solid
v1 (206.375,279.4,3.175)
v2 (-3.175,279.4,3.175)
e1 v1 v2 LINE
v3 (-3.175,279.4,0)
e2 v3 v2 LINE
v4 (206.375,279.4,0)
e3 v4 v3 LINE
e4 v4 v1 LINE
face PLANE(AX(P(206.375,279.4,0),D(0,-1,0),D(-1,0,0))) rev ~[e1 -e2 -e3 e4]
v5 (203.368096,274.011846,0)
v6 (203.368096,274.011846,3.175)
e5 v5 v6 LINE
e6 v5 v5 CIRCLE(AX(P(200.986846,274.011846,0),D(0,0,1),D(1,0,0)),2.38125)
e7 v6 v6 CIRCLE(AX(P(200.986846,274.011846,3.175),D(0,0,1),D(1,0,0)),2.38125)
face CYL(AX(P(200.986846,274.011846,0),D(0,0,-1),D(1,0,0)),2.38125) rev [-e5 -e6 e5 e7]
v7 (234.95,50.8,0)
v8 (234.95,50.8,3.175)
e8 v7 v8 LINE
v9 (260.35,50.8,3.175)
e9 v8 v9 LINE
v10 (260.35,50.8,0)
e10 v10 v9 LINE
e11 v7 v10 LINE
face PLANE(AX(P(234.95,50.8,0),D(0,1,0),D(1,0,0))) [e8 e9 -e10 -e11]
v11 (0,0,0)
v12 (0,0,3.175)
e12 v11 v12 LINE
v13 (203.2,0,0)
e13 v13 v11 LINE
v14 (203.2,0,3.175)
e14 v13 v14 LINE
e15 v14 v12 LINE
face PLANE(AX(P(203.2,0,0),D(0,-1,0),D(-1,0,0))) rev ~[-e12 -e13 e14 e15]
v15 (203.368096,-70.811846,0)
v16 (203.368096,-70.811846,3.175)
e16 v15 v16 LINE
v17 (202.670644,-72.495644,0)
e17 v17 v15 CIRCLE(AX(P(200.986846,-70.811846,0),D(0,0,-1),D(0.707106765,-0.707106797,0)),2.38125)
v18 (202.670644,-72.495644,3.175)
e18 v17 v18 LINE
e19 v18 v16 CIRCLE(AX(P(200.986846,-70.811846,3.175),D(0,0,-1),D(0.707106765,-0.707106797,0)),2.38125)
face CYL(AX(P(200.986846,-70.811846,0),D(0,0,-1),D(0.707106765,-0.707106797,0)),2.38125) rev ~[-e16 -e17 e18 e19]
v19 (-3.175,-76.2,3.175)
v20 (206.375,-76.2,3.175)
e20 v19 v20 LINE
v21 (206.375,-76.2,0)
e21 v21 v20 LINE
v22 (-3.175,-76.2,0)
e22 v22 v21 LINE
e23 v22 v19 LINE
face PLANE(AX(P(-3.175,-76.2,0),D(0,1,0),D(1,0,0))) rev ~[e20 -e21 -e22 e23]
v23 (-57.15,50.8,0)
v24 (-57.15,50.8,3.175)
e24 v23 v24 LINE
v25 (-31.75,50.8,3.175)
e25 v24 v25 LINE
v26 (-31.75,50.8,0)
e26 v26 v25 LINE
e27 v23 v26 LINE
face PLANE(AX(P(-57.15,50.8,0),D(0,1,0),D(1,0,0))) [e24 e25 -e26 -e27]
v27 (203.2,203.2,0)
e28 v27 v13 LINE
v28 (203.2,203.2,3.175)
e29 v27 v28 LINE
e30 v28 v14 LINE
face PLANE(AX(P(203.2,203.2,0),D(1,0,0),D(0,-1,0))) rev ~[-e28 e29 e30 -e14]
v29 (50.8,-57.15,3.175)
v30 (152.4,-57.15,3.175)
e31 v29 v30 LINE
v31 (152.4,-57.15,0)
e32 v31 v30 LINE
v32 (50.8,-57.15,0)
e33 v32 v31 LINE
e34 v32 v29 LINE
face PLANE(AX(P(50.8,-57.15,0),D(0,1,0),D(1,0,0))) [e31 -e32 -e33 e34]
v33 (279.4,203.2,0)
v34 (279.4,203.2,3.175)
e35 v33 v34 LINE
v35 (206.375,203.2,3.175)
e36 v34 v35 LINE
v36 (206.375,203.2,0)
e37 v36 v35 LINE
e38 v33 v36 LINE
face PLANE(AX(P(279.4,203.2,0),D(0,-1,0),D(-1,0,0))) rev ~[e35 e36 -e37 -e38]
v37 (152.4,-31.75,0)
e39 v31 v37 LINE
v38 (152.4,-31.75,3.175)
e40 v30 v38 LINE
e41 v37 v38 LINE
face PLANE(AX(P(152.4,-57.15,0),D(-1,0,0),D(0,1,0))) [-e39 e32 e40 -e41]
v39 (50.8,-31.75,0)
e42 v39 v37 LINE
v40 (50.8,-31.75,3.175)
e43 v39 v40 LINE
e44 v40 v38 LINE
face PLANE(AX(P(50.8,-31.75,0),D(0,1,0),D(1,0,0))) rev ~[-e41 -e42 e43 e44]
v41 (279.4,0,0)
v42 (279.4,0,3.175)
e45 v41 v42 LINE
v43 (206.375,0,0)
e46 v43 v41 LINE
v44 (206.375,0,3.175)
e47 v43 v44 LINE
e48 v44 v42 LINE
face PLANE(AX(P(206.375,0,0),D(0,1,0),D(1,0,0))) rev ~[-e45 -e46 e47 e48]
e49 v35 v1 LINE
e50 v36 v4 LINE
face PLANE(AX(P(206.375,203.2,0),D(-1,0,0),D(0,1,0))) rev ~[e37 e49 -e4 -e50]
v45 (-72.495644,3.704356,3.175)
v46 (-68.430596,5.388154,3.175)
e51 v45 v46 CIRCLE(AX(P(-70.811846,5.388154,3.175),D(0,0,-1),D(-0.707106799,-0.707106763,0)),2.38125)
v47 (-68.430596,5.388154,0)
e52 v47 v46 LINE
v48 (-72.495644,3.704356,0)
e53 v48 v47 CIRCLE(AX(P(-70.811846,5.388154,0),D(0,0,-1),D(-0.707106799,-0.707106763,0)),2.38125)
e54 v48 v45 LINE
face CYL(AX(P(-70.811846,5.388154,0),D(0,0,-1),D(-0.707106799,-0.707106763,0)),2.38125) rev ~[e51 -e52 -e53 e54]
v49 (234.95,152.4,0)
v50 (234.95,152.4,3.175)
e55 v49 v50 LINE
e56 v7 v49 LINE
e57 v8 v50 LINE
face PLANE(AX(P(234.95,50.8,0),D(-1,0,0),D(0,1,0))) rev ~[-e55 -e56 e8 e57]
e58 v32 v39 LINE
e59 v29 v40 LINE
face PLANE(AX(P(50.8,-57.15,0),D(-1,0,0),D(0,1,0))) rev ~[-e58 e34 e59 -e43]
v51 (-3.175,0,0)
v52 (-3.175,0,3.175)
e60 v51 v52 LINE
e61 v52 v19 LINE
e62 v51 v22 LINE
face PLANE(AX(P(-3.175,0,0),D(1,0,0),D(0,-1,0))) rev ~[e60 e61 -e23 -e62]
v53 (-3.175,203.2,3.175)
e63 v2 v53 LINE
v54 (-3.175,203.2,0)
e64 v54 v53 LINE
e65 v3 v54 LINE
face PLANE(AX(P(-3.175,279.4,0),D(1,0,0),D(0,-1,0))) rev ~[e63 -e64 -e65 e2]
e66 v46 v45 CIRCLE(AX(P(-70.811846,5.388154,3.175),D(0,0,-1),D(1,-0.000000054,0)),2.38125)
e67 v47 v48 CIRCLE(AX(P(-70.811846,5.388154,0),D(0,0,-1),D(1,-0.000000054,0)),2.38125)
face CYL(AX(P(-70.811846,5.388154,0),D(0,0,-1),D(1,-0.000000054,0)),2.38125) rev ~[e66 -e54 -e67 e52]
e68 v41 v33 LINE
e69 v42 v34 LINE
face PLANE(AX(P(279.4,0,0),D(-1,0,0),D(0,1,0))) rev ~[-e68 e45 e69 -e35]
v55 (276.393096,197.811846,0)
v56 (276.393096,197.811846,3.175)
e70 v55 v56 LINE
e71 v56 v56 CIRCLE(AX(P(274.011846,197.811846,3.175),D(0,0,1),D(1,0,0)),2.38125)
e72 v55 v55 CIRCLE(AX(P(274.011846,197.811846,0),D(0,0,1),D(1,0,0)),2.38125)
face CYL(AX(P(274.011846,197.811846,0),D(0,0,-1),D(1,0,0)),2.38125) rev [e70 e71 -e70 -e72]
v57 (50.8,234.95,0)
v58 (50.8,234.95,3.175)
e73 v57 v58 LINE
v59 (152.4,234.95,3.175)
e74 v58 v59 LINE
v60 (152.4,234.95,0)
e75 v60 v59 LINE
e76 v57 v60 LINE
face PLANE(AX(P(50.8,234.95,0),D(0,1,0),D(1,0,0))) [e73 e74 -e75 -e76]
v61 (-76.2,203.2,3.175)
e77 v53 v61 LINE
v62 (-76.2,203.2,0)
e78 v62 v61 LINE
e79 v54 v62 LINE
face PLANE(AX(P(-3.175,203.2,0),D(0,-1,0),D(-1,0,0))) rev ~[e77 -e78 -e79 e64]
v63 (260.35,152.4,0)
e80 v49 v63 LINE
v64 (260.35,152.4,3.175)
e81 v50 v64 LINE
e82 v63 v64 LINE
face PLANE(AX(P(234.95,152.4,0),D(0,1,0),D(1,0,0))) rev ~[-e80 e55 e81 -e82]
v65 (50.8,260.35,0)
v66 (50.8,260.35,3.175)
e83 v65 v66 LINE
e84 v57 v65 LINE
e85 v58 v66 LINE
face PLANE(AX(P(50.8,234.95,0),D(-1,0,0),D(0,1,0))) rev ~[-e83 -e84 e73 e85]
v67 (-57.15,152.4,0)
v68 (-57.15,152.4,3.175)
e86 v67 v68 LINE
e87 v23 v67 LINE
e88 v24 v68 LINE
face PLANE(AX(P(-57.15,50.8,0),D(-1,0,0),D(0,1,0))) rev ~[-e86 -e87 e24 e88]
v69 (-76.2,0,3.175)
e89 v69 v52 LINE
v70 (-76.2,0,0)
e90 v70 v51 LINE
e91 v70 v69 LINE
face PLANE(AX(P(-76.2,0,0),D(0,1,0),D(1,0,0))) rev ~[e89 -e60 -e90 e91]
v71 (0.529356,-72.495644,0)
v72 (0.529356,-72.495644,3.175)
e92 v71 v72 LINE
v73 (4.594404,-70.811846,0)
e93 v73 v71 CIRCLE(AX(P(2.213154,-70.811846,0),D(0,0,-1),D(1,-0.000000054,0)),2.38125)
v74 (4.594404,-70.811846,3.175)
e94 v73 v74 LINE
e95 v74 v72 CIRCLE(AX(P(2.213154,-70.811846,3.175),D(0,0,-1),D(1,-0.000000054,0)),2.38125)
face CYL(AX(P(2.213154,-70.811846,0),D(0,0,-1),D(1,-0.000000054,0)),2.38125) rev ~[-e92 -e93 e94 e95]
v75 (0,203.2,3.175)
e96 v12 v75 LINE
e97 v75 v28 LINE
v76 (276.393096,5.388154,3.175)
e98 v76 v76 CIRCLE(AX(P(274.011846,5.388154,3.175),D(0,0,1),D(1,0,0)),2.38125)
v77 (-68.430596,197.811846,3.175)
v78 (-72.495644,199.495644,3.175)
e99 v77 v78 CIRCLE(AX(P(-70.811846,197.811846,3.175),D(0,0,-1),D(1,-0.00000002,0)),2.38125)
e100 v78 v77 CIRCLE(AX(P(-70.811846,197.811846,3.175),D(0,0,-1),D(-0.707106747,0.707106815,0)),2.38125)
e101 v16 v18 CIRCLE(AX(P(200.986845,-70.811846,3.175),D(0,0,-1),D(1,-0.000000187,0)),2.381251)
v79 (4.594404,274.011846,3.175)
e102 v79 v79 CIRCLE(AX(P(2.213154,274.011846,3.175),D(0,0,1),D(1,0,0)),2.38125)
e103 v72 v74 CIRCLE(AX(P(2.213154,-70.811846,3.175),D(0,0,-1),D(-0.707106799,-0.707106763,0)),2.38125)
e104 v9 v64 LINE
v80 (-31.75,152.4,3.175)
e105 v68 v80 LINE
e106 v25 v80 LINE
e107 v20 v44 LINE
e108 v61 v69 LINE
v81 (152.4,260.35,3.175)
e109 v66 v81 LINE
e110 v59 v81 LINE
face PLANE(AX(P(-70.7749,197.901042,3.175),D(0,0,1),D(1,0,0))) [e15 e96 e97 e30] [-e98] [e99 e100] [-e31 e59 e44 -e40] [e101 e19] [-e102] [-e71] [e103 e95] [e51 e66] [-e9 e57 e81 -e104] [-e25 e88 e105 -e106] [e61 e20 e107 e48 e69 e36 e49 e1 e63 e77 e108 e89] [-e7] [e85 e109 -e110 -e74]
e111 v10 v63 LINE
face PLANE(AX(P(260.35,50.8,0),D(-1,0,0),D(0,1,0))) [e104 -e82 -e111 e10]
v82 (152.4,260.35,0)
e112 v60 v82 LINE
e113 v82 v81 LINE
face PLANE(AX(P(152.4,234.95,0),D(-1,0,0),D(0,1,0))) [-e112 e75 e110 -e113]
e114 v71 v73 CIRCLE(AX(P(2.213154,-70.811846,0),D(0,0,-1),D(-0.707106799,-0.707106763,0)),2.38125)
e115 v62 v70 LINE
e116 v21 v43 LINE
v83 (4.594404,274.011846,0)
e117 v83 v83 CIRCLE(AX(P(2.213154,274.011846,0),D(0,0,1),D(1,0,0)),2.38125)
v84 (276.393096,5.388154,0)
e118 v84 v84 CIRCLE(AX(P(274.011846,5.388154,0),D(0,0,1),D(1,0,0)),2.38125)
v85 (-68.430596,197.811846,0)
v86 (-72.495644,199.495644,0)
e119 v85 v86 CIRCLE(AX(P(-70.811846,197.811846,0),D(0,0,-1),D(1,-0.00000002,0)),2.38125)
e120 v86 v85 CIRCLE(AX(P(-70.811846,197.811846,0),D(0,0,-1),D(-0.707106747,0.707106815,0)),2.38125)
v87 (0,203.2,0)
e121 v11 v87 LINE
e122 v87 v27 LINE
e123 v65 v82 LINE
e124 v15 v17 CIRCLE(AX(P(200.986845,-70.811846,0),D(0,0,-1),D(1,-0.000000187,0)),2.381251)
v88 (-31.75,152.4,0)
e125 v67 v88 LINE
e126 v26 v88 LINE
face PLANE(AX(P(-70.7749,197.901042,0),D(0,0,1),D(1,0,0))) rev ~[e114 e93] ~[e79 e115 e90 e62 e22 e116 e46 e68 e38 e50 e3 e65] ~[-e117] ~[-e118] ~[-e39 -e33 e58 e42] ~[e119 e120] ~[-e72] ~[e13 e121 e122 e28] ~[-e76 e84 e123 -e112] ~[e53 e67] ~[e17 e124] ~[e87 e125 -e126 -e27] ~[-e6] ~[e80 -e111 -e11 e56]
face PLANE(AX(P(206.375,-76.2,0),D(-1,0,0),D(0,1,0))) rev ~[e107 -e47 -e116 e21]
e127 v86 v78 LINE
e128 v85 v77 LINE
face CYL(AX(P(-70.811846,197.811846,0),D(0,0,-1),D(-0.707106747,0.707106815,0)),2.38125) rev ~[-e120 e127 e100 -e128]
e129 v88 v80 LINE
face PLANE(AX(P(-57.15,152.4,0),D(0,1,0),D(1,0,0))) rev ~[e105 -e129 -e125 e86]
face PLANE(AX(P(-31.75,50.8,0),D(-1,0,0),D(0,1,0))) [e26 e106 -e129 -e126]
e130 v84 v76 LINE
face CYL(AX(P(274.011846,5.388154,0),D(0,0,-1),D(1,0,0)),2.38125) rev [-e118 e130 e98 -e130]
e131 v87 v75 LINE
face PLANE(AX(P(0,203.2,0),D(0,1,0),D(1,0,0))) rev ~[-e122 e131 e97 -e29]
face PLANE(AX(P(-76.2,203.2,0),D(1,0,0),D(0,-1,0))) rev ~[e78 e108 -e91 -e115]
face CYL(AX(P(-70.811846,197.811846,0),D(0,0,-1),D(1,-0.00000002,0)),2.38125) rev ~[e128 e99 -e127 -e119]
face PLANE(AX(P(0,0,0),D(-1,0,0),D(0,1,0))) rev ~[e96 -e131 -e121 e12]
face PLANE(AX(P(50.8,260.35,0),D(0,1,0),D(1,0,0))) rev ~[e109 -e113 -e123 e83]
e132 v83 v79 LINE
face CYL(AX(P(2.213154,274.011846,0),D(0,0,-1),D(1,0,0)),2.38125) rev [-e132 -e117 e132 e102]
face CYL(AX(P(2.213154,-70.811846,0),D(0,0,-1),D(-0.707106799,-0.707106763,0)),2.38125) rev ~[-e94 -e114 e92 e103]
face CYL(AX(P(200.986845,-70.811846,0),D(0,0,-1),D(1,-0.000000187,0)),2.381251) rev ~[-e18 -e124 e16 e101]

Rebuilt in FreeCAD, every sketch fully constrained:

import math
import FreeCAD as App
import Part
import Sketcher
from FreeCAD import Vector
Q = App.Units.Quantity

doc = App.newDocument("Part")
body = doc.addObject("PartDesign::Body", "Body")

# Sketch on XY plane
sketch1 = doc.addObject("Sketcher::SketchObject", "Sketch")
body.addObject(sketch1)
sketch1.AttachmentSupport = (doc.XY_Plane, [""])
sketch1.MapMode = "FlatFace"
sketch1.addGeometry([
    Part.LineSegment(Vector(206.4, -76.2, 0), Vector(206.4, 0, 0)),  # 0
    Part.LineSegment(Vector(206.4, 0, 0), Vector(279.4, 0, 0)),  # 1
    Part.LineSegment(Vector(279.4, 0, 0), Vector(279.4, 203.2, 0)),  # 2
    Part.LineSegment(Vector(279.4, 203.2, 0), Vector(206.4, 203.2, 0)),  # 3
    Part.LineSegment(Vector(206.4, 203.2, 0), Vector(206.4, 279.4, 0)),  # 4
    Part.LineSegment(Vector(206.4, 279.4, 0), Vector(-3.2, 279.4, 0)),  # 5
    Part.LineSegment(Vector(-3.2, 279.4, 0), Vector(-3.2, 203.2, 0)),  # 6
    Part.LineSegment(Vector(-3.2, 203.2, 0), Vector(-76.2, 203.2, 0)),  # 7
    Part.LineSegment(Vector(-76.2, 203.2, 0), Vector(-76.2, 0, 0)),  # 8
    Part.LineSegment(Vector(-76.2, 0, 0), Vector(-3.2, 0, 0)),  # 9
    Part.LineSegment(Vector(-3.2, 0, 0), Vector(-3.2, -76.2, 0)),  # 10
    Part.LineSegment(Vector(-3.2, -76.2, 0), Vector(206.4, -76.2, 0)),  # 11
    Part.ArcOfCircle(Part.Circle(Vector(2.2, -70.8, 0), Vector(0, 0, 1), 2.4), math.radians(0), math.radians(225)),  # 12
    Part.ArcOfCircle(Part.Circle(Vector(2.2, -70.8, 0), Vector(0, 0, 1), 2.4), math.radians(-135), math.radians(0)),  # 13
    Part.ArcOfCircle(Part.Circle(Vector(-70.8, 5.4, 0), Vector(0, 0, 1), 2.4), math.radians(0), math.radians(225)),  # 14
    Part.ArcOfCircle(Part.Circle(Vector(-70.8, 5.4, 0), Vector(0, 0, 1), 2.4), math.radians(-135), math.radians(0)),  # 15
    Part.LineSegment(Vector(152.4, -57.1, 0), Vector(50.8, -57.1, 0)),  # 16
    Part.LineSegment(Vector(50.8, -57.1, 0), Vector(50.8, -31.8, 0)),  # 17
    Part.LineSegment(Vector(50.8, -31.8, 0), Vector(152.4, -31.8, 0)),  # 18
    Part.LineSegment(Vector(152.4, -31.8, 0), Vector(152.4, -57.1, 0)),  # 19
    Part.LineSegment(Vector(-31.8, 50.8, 0), Vector(-57.1, 50.8, 0)),  # 20
    Part.LineSegment(Vector(-57.1, 50.8, 0), Vector(-57.1, 152.4, 0)),  # 21
    Part.LineSegment(Vector(-57.1, 152.4, 0), Vector(-31.8, 152.4, 0)),  # 22
    Part.LineSegment(Vector(-31.8, 152.4, 0), Vector(-31.8, 50.8, 0)),  # 23
    Part.LineSegment(Vector(0, 0, 0), Vector(0, 203.2, 0)),  # 24
    Part.LineSegment(Vector(0, 203.2, 0), Vector(203.2, 203.2, 0)),  # 25
    Part.LineSegment(Vector(203.2, 203.2, 0), Vector(203.2, 0, 0)),  # 26
    Part.LineSegment(Vector(203.2, 0, 0), Vector(0, 0, 0)),  # 27
    Part.ArcOfCircle(Part.Circle(Vector(201, -70.8, 0), Vector(0, 0, 1), 2.4), math.radians(0), math.radians(315)),  # 28
    Part.ArcOfCircle(Part.Circle(Vector(201, -70.8, 0), Vector(0, 0, 1), 2.4), math.radians(-45), math.radians(0)),  # 29
    Part.Circle(Vector(274, 5.4, 0), Vector(0, 0, 1), 2.4),  # 30
    Part.LineSegment(Vector(260.4, 50.8, 0), Vector(234.9, 50.8, 0)),  # 31
    Part.LineSegment(Vector(234.9, 50.8, 0), Vector(234.9, 152.4, 0)),  # 32
    Part.LineSegment(Vector(234.9, 152.4, 0), Vector(260.4, 152.4, 0)),  # 33
    Part.LineSegment(Vector(260.4, 152.4, 0), Vector(260.4, 50.8, 0)),  # 34
    Part.ArcOfCircle(Part.Circle(Vector(-70.8, 197.8, 0), Vector(0, 0, 1), 2.4), math.radians(0), math.radians(135)),  # 35
    Part.ArcOfCircle(Part.Circle(Vector(-70.8, 197.8, 0), Vector(0, 0, 1), 2.4), math.radians(135), math.radians(360)),  # 36
    Part.Circle(Vector(2.2, 274, 0), Vector(0, 0, 1), 2.4),  # 37
    Part.LineSegment(Vector(152.4, 234.9, 0), Vector(50.8, 234.9, 0)),  # 38
    Part.LineSegment(Vector(50.8, 234.9, 0), Vector(50.8, 260.4, 0)),  # 39
    Part.LineSegment(Vector(50.8, 260.4, 0), Vector(152.4, 260.4, 0)),  # 40
    Part.LineSegment(Vector(152.4, 260.4, 0), Vector(152.4, 234.9, 0)),  # 41
    Part.Circle(Vector(274, 197.8, 0), Vector(0, 0, 1), 2.4),  # 42
    Part.Circle(Vector(201, 274, 0), Vector(0, 0, 1), 2.4),  # 43
], False)
sketch1.addConstraint([
    Sketcher.Constraint("Coincident", 0, 2, 1, 1),
    Sketcher.Constraint("Coincident", 1, 2, 2, 1),
    Sketcher.Constraint("Coincident", 2, 2, 3, 1),
    Sketcher.Constraint("Coincident", 3, 2, 4, 1),
    Sketcher.Constraint("Coincident", 4, 2, 5, 1),
    Sketcher.Constraint("Coincident", 5, 2, 6, 1),
    Sketcher.Constraint("Coincident", 6, 2, 7, 1),
    Sketcher.Constraint("Coincident", 7, 2, 8, 1),
    Sketcher.Constraint("Coincident", 8, 2, 9, 1),
    Sketcher.Constraint("Coincident", 9, 2, 10, 1),
    Sketcher.Constraint("Coincident", 10, 2, 11, 1),
    Sketcher.Constraint("Coincident", 11, 2, 0, 1),
    Sketcher.Constraint("Tangent", 12, 1, 13, 2),
    Sketcher.Constraint("Coincident", 13, 1, 12, 2),
    Sketcher.Constraint("Tangent", 14, 1, 15, 2),
    Sketcher.Constraint("Coincident", 15, 1, 14, 2),
    Sketcher.Constraint("Coincident", 16, 2, 17, 1),
    Sketcher.Constraint("Coincident", 17, 2, 18, 1),
    Sketcher.Constraint("Coincident", 18, 2, 19, 1),
    Sketcher.Constraint("Coincident", 19, 2, 16, 1),
    Sketcher.Constraint("Coincident", 20, 2, 21, 1),
    Sketcher.Constraint("Coincident", 21, 2, 22, 1),
    Sketcher.Constraint("Coincident", 22, 2, 23, 1),
    Sketcher.Constraint("Coincident", 23, 2, 20, 1),
    Sketcher.Constraint("Coincident", 24, 2, 25, 1),
    Sketcher.Constraint("Coincident", 25, 2, 26, 1),
    Sketcher.Constraint("Coincident", 26, 2, 27, 1),
    Sketcher.Constraint("Coincident", 27, 2, 24, 1),
    Sketcher.Constraint("Tangent", 28, 1, 29, 2),
    Sketcher.Constraint("Coincident", 29, 1, 28, 2),
    Sketcher.Constraint("Coincident", 31, 2, 32, 1),
    Sketcher.Constraint("Coincident", 32, 2, 33, 1),
    Sketcher.Constraint("Coincident", 33, 2, 34, 1),
    Sketcher.Constraint("Coincident", 34, 2, 31, 1),
    Sketcher.Constraint("Tangent", 35, 1, 36, 2),
    Sketcher.Constraint("Coincident", 36, 1, 35, 2),
    Sketcher.Constraint("Coincident", 38, 2, 39, 1),
    Sketcher.Constraint("Coincident", 39, 2, 40, 1),
    Sketcher.Constraint("Coincident", 40, 2, 41, 1),
    Sketcher.Constraint("Coincident", 41, 2, 38, 1),
    Sketcher.Constraint("Vertical", 0),
    Sketcher.Constraint("Horizontal", 1),
    Sketcher.Constraint("Vertical", 2),
    Sketcher.Constraint("Horizontal", 3),
    Sketcher.Constraint("Vertical", 4),
    Sketcher.Constraint("Horizontal", 5),
    Sketcher.Constraint("Vertical", 6),
    Sketcher.Constraint("Horizontal", 7),
    Sketcher.Constraint("Vertical", 8),
    Sketcher.Constraint("Horizontal", 9),
    Sketcher.Constraint("Vertical", 10),
    Sketcher.Constraint("Horizontal", 11),
    Sketcher.Constraint("Horizontal", 16),
    Sketcher.Constraint("Vertical", 17),
    Sketcher.Constraint("Horizontal", 18),
    Sketcher.Constraint("Vertical", 19),
    Sketcher.Constraint("Horizontal", 20),
    Sketcher.Constraint("Vertical", 21),
    Sketcher.Constraint("Horizontal", 22),
    Sketcher.Constraint("Vertical", 23),
    Sketcher.Constraint("Vertical", 24),
    Sketcher.Constraint("Horizontal", 25),
    Sketcher.Constraint("Vertical", 26),
    Sketcher.Constraint("Horizontal", 27),
    Sketcher.Constraint("Horizontal", 31),
    Sketcher.Constraint("Vertical", 32),
    Sketcher.Constraint("Horizontal", 33),
    Sketcher.Constraint("Vertical", 34),
    Sketcher.Constraint("Horizontal", 38),
    Sketcher.Constraint("Vertical", 39),
    Sketcher.Constraint("Horizontal", 40),
    Sketcher.Constraint("Vertical", 41),
    Sketcher.Constraint("Coincident", 27, 2, -1, 1),
    Sketcher.Constraint("Equal", 13, 14),
    Sketcher.Constraint("Equal", 15, 28),
    Sketcher.Constraint("Equal", 29, 30),
    Sketcher.Constraint("Equal", 30, 35),
    Sketcher.Constraint("Equal", 36, 37),
    Sketcher.Constraint("Equal", 37, 42),
    Sketcher.Constraint("Equal", 42, 43),
    Sketcher.Constraint("PointOnObject", 0, 2, -1),
    Sketcher.Constraint("PointOnObject", 8, 2, -1),
    Sketcher.Constraint("Horizontal", 13, 3, 28, 3),
    Sketcher.Constraint("Horizontal", 15, 3, 30, 3),
    Sketcher.Constraint("Horizontal", 36, 3, 42, 3),
    Sketcher.Constraint("Horizontal", 37, 3, 43, 3),
    Sketcher.Constraint("Horizontal", 3, 2, 6, 2),
    Sketcher.Constraint("Horizontal", 29, 3, 12, 1),
    Sketcher.Constraint("Horizontal", 30, 3, 14, 1),
    Sketcher.Constraint("Horizontal", 7, 2, 24, 2),
    Sketcher.Constraint("Horizontal", 12, 1, 28, 1),
    Sketcher.Constraint("Horizontal", 13, 1, 29, 1),
    Sketcher.Constraint("Horizontal", 23, 2, 31, 2),
    Sketcher.Constraint("Horizontal", 22, 2, 32, 2),
    Sketcher.Constraint("Horizontal", 42, 3, 35, 1),
    Sketcher.Constraint("Vertical", 15, 3, 35, 3),
    Sketcher.Constraint("Vertical", 13, 3, 37, 3),
    Sketcher.Constraint("Vertical", 30, 3, 42, 3),
    Sketcher.Constraint("Vertical", 29, 3, 43, 3),
    Sketcher.Constraint("Vertical", 0, 2, 3, 2),
    Sketcher.Constraint("Vertical", 6, 2, 9, 2),
    Sketcher.Constraint("Vertical", 15, 1, 36, 1),
    Sketcher.Constraint("Vertical", 17, 2, 38, 2),
    Sketcher.Constraint("Vertical", 19, 2, 40, 2),
    Sketcher.Constraint("Equal", 3, 7),
    Sketcher.Constraint("Equal", 22, 31),
    Sketcher.Constraint("Equal", 27, 2),
    Sketcher.Constraint("Equal", 0, 4),
    Sketcher.Constraint("Equal", 33, 17),
    Sketcher.Constraint("Equal", 40, 21),
    Sketcher.Constraint("Equal", 19, 39),
    Sketcher.Constraint("DistanceX", 16, 2, 16, 1, Q("4 in")),
    Sketcher.Constraint("DistanceX", 20, 2, 20, 1, Q("1 in")),
    Sketcher.Constraint("DistanceX", 25, 1, 25, 2, Q("8 in")),
    Sketcher.Constraint("DistanceY", 0, 1, 0, 2, Q("3 in")),
    Sketcher.Constraint("Diameter", 30, Q("0.1875 in")),
    Sketcher.Constraint("DistanceX", -1, 1, 1, 2, Q("11 in")),
    Sketcher.Constraint("DistanceX", 7, 2, -1, 1, Q("3 in")),
    Sketcher.Constraint("DistanceX", -1, 1, 16, 2, Q("2 in")),
    Sketcher.Constraint("DistanceY", -1, 1, 20, 2, Q("2 in")),
    Sketcher.Constraint("DistanceY", 13, 3, 14, 3, Q("3 in")),
    Sketcher.Constraint("DistanceY", 36, 3, 37, 3, Q("3 in")),
    Sketcher.Constraint("DistanceX", 5, 2, 5, 1, Q("8.25 in")),
    Sketcher.Constraint("DistanceY", 16, 2, -1, 1, Q("2.25 in")),
    Sketcher.Constraint("DistanceX", 20, 2, -1, 1, Q("2.25 in")),
    Sketcher.Constraint("DistanceX", -1, 1, 31, 2, Q("9.25 in")),
    Sketcher.Constraint("DistanceY", -1, 1, 38, 2, Q("9.25 in")),
    Sketcher.Constraint("DistanceX", 14, 3, 13, 3, Q("2.875 in")),
    Sketcher.Constraint("DistanceX", 28, 3, 30, 3, Q("2.875 in")),
    Sketcher.Constraint("DistanceX", 13, 1, 12, 3, 1.683798),
    Sketcher.Constraint("DistanceX", 15, 1, 14, 3, 1.683798),
    Sketcher.Constraint("DistanceX", 12, 3, 29, 3, 198.773691),
    Sketcher.Constraint("DistanceY", 15, 3, 35, 3, 192.423692),
    Sketcher.Constraint("DistanceX", -1, 1, 12, 3, 2.213154),
    Sketcher.Constraint("DistanceY", 12, 3, -1, 1, 70.811846),
])
pad1 = doc.addObject("PartDesign::Pad", "Pad")
body.addObject(pad1)
pad1.Profile = sketch1
pad1.Length = Q("0.125 in")

doc.recompute()
